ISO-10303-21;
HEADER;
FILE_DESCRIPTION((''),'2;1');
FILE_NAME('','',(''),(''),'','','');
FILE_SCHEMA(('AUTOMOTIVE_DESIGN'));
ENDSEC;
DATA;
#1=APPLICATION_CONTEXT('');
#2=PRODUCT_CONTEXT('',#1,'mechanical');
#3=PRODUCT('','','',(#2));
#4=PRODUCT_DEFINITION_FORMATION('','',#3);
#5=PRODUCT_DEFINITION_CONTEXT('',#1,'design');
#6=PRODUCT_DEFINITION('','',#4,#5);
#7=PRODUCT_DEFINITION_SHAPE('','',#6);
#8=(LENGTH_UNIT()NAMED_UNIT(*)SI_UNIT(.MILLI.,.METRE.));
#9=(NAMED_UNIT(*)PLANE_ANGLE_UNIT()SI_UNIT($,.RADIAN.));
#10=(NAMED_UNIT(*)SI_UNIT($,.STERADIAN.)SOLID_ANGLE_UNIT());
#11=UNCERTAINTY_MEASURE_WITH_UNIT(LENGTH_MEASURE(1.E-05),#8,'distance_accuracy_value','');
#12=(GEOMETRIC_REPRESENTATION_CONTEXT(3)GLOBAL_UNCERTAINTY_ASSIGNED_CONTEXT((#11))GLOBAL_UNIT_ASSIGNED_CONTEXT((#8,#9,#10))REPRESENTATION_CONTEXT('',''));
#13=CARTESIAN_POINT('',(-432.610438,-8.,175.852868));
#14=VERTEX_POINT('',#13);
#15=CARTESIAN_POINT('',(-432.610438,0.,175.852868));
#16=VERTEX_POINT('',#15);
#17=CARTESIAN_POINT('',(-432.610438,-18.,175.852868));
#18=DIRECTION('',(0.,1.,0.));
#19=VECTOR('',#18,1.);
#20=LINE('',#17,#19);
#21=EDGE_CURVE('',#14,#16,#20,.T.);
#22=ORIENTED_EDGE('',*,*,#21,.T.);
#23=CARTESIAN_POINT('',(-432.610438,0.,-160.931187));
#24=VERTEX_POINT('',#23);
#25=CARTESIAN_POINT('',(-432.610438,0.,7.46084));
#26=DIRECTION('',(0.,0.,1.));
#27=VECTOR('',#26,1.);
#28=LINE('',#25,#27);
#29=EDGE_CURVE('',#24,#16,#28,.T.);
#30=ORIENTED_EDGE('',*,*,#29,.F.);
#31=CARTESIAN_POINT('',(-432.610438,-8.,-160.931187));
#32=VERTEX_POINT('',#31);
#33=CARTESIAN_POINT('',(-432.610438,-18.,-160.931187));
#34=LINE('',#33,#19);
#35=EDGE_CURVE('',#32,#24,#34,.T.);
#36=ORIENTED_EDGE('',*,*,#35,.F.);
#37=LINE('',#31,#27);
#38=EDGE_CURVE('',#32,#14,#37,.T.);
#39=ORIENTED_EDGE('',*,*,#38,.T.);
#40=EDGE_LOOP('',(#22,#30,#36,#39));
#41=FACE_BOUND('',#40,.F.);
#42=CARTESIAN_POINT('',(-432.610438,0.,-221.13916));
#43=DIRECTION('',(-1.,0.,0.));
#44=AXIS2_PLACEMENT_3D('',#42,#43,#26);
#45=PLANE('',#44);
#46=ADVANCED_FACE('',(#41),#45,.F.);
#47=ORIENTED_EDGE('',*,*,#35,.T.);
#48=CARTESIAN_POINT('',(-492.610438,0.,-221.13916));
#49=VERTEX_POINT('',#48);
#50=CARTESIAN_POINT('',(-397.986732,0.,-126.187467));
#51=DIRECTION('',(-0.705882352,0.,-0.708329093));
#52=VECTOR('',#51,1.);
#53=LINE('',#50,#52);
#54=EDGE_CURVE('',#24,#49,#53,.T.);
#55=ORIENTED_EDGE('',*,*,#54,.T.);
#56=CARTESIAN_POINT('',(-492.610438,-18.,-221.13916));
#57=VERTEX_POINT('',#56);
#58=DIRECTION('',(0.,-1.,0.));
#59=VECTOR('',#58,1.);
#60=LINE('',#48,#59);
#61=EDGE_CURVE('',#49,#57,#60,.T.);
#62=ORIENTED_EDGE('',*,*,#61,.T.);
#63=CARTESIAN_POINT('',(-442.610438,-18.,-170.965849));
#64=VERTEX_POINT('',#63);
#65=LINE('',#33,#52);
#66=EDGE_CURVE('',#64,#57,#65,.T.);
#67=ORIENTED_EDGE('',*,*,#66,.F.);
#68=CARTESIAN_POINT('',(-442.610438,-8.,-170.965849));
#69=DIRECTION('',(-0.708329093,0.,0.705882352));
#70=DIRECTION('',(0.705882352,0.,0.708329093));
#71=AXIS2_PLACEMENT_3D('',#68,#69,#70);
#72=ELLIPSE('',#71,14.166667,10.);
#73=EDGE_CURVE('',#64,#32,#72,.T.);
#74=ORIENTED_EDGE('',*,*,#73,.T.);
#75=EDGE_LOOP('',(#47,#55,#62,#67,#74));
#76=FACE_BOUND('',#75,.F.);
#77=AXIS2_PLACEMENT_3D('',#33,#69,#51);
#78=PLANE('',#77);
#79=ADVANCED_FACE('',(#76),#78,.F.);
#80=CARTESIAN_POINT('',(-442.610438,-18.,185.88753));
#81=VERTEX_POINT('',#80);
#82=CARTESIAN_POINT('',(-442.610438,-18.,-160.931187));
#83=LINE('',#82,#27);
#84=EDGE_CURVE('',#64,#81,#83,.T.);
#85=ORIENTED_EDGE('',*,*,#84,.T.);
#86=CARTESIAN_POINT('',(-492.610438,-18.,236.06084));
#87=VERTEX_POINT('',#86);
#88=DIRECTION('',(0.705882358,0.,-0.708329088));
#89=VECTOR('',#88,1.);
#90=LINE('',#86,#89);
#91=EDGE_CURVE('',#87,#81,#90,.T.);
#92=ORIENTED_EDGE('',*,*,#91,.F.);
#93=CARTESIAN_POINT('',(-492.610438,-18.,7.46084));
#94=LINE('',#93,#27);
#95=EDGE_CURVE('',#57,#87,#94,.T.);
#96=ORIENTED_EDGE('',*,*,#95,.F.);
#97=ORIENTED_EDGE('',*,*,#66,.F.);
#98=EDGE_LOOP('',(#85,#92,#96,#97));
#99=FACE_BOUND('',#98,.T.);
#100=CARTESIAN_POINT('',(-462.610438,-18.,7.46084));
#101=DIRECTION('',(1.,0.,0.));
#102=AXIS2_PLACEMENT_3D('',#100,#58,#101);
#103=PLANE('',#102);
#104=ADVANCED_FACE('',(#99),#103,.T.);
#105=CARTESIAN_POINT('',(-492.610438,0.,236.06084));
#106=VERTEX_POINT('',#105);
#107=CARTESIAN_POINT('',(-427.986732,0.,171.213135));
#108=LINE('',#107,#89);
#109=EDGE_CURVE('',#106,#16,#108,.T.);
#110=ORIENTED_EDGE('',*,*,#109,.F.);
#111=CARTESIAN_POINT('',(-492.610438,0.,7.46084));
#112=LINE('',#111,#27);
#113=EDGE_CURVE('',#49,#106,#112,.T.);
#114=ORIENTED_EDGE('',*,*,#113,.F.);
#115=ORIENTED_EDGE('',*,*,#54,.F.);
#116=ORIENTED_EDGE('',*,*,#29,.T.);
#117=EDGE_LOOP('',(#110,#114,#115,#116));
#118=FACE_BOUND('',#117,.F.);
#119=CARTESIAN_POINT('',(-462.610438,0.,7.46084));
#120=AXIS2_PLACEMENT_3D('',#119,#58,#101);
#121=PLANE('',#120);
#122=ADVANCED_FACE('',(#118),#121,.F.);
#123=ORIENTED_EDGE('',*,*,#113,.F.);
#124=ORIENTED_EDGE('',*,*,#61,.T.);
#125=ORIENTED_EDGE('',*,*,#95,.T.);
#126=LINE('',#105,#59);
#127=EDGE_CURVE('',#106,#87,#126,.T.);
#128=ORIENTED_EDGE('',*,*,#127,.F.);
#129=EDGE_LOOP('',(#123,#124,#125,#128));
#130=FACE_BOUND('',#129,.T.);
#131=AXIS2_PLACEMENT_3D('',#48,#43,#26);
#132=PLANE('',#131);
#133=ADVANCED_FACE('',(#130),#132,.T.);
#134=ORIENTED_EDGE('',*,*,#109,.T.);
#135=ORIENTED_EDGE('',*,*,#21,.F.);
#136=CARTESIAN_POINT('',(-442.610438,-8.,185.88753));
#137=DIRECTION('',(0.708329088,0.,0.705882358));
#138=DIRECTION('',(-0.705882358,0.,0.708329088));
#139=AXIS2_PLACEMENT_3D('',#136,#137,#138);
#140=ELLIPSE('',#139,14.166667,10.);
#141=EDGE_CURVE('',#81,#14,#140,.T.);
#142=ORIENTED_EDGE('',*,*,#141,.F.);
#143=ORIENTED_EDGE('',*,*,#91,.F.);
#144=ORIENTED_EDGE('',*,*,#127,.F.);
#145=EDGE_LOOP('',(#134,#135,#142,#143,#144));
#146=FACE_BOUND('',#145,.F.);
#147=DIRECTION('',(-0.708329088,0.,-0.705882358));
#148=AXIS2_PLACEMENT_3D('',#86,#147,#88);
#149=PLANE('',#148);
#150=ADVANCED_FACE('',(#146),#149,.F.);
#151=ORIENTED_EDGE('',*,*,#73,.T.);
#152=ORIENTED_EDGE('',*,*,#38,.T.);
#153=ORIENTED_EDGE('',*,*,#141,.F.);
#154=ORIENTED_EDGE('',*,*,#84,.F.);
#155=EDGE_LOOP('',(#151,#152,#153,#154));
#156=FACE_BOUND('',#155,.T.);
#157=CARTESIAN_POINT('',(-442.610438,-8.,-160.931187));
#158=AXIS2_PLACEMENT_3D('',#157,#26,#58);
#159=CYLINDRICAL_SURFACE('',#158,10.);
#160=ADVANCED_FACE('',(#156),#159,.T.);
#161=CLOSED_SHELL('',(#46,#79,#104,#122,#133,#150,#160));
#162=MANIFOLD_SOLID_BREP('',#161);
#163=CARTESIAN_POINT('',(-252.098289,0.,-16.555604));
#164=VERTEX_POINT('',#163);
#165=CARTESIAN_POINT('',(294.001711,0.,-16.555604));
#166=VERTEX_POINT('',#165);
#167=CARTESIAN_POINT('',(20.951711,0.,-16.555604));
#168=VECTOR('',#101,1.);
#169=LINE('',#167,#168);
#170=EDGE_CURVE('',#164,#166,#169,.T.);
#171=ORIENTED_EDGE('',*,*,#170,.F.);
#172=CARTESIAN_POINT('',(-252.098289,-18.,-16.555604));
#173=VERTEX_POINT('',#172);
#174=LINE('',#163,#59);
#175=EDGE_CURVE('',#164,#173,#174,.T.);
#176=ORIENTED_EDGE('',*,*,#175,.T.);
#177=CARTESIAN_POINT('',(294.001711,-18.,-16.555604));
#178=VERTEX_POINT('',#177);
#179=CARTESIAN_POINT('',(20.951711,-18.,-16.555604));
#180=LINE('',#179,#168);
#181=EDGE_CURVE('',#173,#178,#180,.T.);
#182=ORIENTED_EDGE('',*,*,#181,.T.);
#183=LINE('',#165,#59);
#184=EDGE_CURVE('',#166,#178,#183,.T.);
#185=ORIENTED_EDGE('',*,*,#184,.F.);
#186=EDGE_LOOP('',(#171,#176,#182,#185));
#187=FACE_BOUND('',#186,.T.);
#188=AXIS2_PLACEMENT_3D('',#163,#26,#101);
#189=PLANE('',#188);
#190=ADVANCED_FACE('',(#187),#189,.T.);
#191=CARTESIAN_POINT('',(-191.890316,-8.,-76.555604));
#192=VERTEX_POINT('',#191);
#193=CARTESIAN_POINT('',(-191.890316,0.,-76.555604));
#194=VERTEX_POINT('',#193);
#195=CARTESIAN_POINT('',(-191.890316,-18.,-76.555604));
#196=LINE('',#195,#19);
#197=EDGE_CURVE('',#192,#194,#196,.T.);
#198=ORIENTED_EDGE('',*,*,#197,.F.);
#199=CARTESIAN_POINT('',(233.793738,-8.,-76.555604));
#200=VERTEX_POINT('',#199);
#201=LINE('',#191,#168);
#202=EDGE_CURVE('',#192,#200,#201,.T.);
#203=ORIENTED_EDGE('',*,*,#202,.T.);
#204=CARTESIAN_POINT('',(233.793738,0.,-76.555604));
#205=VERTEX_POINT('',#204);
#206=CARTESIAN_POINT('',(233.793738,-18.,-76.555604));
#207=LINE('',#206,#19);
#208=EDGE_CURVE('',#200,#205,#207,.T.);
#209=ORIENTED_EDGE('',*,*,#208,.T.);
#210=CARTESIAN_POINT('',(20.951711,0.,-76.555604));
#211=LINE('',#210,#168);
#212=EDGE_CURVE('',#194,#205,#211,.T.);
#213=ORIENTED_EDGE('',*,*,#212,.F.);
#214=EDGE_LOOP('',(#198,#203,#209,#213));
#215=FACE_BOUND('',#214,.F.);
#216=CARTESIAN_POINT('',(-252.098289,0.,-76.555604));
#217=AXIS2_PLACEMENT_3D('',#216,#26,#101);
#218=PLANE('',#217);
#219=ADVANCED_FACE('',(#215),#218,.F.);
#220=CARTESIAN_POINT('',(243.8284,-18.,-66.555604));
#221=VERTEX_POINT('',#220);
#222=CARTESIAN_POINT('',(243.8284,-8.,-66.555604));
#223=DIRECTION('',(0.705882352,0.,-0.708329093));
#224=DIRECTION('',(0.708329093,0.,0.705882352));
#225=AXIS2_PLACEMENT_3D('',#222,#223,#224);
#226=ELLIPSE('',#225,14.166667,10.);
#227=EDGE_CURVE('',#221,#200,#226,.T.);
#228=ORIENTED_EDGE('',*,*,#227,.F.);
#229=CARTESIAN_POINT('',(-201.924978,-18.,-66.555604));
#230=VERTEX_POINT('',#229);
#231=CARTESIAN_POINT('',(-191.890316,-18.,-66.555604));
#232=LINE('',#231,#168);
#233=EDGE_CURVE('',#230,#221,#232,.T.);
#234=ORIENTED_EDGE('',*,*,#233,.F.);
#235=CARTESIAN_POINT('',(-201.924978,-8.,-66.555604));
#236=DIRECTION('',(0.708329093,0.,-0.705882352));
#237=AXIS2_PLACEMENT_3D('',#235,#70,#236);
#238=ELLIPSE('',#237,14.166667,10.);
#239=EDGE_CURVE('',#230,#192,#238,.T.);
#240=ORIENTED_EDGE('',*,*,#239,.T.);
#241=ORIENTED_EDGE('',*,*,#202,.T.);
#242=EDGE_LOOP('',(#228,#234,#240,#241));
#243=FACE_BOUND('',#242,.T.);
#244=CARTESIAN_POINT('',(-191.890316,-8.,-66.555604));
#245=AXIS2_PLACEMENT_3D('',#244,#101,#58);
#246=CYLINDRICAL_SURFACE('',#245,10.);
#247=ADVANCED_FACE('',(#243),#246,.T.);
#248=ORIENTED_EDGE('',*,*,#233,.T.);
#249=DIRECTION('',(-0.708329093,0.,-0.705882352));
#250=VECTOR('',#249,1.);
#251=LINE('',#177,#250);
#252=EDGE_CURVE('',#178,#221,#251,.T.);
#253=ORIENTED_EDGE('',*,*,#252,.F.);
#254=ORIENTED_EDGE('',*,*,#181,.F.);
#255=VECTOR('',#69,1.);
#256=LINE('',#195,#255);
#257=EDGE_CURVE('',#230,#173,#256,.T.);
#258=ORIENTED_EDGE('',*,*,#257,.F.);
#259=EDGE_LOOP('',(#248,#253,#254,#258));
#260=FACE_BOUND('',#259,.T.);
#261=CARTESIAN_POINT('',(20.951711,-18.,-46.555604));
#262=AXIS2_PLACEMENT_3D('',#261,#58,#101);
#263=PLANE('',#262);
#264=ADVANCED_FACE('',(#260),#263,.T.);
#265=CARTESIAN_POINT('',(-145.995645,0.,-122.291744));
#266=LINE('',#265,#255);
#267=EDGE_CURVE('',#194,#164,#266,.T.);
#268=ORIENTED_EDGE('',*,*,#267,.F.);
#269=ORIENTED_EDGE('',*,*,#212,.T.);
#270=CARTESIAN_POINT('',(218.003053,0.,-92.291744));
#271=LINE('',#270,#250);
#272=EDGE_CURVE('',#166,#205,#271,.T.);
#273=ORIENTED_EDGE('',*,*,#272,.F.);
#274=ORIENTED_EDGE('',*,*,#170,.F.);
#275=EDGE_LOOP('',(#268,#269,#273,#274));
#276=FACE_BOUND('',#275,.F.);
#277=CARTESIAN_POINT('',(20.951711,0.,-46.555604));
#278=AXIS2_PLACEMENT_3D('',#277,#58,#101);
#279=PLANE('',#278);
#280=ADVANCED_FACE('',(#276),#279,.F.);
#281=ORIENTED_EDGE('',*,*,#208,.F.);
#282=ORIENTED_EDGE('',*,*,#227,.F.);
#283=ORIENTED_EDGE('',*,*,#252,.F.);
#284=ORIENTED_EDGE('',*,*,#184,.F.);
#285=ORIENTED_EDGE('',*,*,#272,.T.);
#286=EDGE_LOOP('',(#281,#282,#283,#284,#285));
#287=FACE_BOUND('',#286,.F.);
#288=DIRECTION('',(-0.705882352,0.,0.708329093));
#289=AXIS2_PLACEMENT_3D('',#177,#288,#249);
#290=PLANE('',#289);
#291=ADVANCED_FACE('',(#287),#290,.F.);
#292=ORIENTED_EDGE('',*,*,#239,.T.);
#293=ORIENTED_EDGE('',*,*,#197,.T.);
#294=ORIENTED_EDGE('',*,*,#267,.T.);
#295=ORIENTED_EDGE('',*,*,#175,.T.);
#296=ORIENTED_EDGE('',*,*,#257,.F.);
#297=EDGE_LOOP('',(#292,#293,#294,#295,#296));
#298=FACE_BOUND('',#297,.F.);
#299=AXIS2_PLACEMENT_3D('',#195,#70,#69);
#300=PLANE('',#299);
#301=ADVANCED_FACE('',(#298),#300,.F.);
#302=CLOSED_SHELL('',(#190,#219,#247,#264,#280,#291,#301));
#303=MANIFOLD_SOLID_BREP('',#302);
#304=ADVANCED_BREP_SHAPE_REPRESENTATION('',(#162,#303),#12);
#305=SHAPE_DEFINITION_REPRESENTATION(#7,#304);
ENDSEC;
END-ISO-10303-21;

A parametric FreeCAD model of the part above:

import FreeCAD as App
import Part
import Sketcher


def edges_at(feature, points):
    """Names of the edges that pass closest to the given points."""
    edges = feature.Shape.Edges
    near = lambda p: min(range(len(edges)), key=lambda i: edges[i].distToShape(Part.Vertex(*p))[0])
    return sorted({f"Edge{near(p) + 1}" for p in points})

doc = App.newDocument("Part")
body = doc.addObject("PartDesign::Body", "Body")

# Sketch on XZ plane
sketch1 = body.newObject("Sketcher::SketchObject", "Sketch")
sketch1.AttachmentSupport = (doc.getObject("XZ_Plane"), [""])
sketch1.MapMode = "FlatFace"
sketch1.addGeometry(Part.LineSegment(App.Vector(-252, -17, 0), App.Vector(-252, -77, 0)), False)
sketch1.addGeometry(Part.LineSegment(App.Vector(-252, -77, 0), App.Vector(294, -77, 0)), False)
sketch1.addGeometry(Part.LineSegment(App.Vector(294, -77, 0), App.Vector(294, -17, 0)), False)
sketch1.addGeometry(Part.LineSegment(App.Vector(294, -17, 0), App.Vector(-252, -17, 0)), False)
sketch1.addConstraint(Sketcher.Constraint("Coincident", 0, 2, 1, 1))
sketch1.addConstraint(Sketcher.Constraint("Coincident", 1, 2, 2, 1))
sketch1.addConstraint(Sketcher.Constraint("Coincident", 2, 2, 3, 1))
sketch1.addConstraint(Sketcher.Constraint("Coincident", 3, 2, 0, 1))
sketch1.addConstraint(Sketcher.Constraint("Vertical", 0))
sketch1.addConstraint(Sketcher.Constraint("Horizontal", 1))
sketch1.addConstraint(Sketcher.Constraint("Vertical", 2))
sketch1.addConstraint(Sketcher.Constraint("Horizontal", 3))
sketch1.addConstraint(Sketcher.Constraint("DistanceY", 0, 2, 0, 1, 60.0))
sketch1.addConstraint(Sketcher.Constraint("DistanceX", 1, 1, 1, 2, 546.1))
sketch1.addConstraint(Sketcher.Constraint("DistanceX", 0, 2, -1, 1, 252.098289))
sketch1.addConstraint(Sketcher.Constraint("DistanceY", 0, 2, -1, 1, 76.555604))
pad1 = body.newObject("PartDesign::Pad", "Pad")
pad1.Profile = sketch1
pad1.Length = 18

# Sketch on XZ plane
sketch2 = body.newObject("Sketcher::SketchObject", "Sketch001")
sketch2.AttachmentSupport = (doc.getObject("XZ_Plane"), [""])
sketch2.MapMode = "FlatFace"
sketch2.AttachmentOffset = App.Placement(App.Vector(0, 0, 18), App.Rotation())
sketch2.addGeometry(Part.LineSegment(App.Vector(-192, -77, 0), App.Vector(-252, -17, 0)), False)
sketch2.addGeometry(Part.LineSegment(App.Vector(-252, -17, 0), App.Vector(-252, -77, 0)), False)
sketch2.addGeometry(Part.LineSegment(App.Vector(-252, -77, 0), App.Vector(-192, -77, 0)), False)
sketch2.addConstraint(Sketcher.Constraint("Coincident", 0, 2, 1, 1))
sketch2.addConstraint(Sketcher.Constraint("Coincident", 1, 2, 2, 1))
sketch2.addConstraint(Sketcher.Constraint("Coincident", 2, 2, 0, 1))
sketch2.addConstraint(Sketcher.Constraint("Vertical", 1))
sketch2.addConstraint(Sketcher.Constraint("Horizontal", 2))
sketch2.addConstraint(Sketcher.Constraint("DistanceY", 1, 2, 1, 1, 60.0))
sketch2.addConstraint(Sketcher.Constraint("Distance", 0, 85.0))
sketch2.addConstraint(Sketcher.Constraint("DistanceX", 0, 2, -1, 1, 252.098289))
sketch2.addConstraint(Sketcher.Constraint("DistanceY", 0, 2, -1, 1, 16.555604))
pocket1 = body.newObject("PartDesign::Pocket", "Pocket")
pocket1.Profile = sketch2
pocket1.Type = "ThroughAll"

# Sketch on XZ plane
sketch3 = body.newObject("Sketcher::SketchObject", "Sketch002")
sketch3.AttachmentSupport = (doc.getObject("XZ_Plane"), [""])
sketch3.MapMode = "FlatFace"
sketch3.AttachmentOffset = App.Placement(App.Vector(0, 0, 18), App.Rotation())
sketch3.addGeometry(Part.LineSegment(App.Vector(294, -77, 0), App.Vector(294, -17, 0)), False)
sketch3.addGeometry(Part.LineSegment(App.Vector(294, -17, 0), App.Vector(234, -77, 0)), False)
sketch3.addGeometry(Part.LineSegment(App.Vector(234, -77, 0), App.Vector(294, -77, 0)), False)
sketch3.addConstraint(Sketcher.Constraint("Coincident", 0, 2, 1, 1))
sketch3.addConstraint(Sketcher.Constraint("Coincident", 1, 2, 2, 1))
sketch3.addConstraint(Sketcher.Constraint("Coincident", 2, 2, 0, 1))
sketch3.addConstraint(Sketcher.Constraint("Vertical", 0))
sketch3.addConstraint(Sketcher.Constraint("Horizontal", 2))
sketch3.addConstraint(Sketcher.Constraint("DistanceY", 0, 1, 0, 2, 60.0))
sketch3.addConstraint(Sketcher.Constraint("Distance", 1, 85.0))
sketch3.addConstraint(Sketcher.Constraint("DistanceX", -1, 1, 0, 2, 294.001711))
sketch3.addConstraint(Sketcher.Constraint("DistanceY", 0, 2, -1, 1, 16.555604))
pocket2 = body.newObject("PartDesign::Pocket", "Pocket001")
pocket2.Profile = sketch3
pocket2.Type = "ThroughAll"
doc.recompute()

fillet = body.newObject("PartDesign::Fillet", "Fillet")
fillet.Base = (pocket2, edges_at(pocket2, [(20.952, -18, -76.556)]))
fillet.Radius = 10
body2 = doc.addObject("PartDesign::Body", "Body001")

# Sketch on XZ plane
sketch4 = body2.newObject("Sketcher::SketchObject", "Sketch003")
sketch4.AttachmentSupport = (doc.getObject("XZ_Plane001"), [""])
sketch4.MapMode = "FlatFace"
sketch4.addGeometry(Part.LineSegment(App.Vector(-493, 236, 0), App.Vector(-493, -221, 0)), False)
sketch4.addGeometry(Part.LineSegment(App.Vector(-493, -221, 0), App.Vector(-433, -221, 0)), False)
sketch4.addGeometry(Part.LineSegment(App.Vector(-433, -221, 0), App.Vector(-433, 236, 0)), False)
sketch4.addGeometry(Part.LineSegment(App.Vector(-433, 236, 0), App.Vector(-493, 236, 0)), False)
sketch4.addConstraint(Sketcher.Constraint("Coincident", 0, 2, 1, 1))
sketch4.addConstraint(Sketcher.Constraint("Coincident", 1, 2, 2, 1))
sketch4.addConstraint(Sketcher.Constraint("Coincident", 2, 2, 3, 1))
sketch4.addConstraint(Sketcher.Constraint("Coincident", 3, 2, 0, 1))
sketch4.addConstraint(Sketcher.Constraint("Vertical", 0))
sketch4.addConstraint(Sketcher.Constraint("Horizontal", 1))
sketch4.addConstraint(Sketcher.Constraint("Vertical", 2))
sketch4.addConstraint(Sketcher.Constraint("Horizontal", 3))
sketch4.addConstraint(Sketcher.Constraint("DistanceX", 1, 1, 1, 2, 60.0))
sketch4.addConstraint(Sketcher.Constraint("DistanceY", 0, 2, 0, 1, 457.2))
sketch4.addConstraint(Sketcher.Constraint("DistanceX", 0, 2, -1, 1, 492.610438))
sketch4.addConstraint(Sketcher.Constraint("DistanceY", 0, 2, -1, 1, 221.13916))
pad2 = body2.newObject("PartDesign::Pad", "Pad001")
pad2.Profile = sketch4
pad2.Length = 18

# Sketch on XZ plane
sketch5 = body2.newObject("Sketcher::SketchObject", "Sketch004")
sketch5.AttachmentSupport = (doc.getObject("XZ_Plane001"), [""])
sketch5.MapMode = "FlatFace"
sketch5.AttachmentOffset = App.Placement(App.Vector(0, 0, 18), App.Rotation())
sketch5.addGeometry(Part.LineSegment(App.Vector(-433, 236, 0), App.Vector(-493, 236, 0)), False)
sketch5.addGeometry(Part.LineSegment(App.Vector(-493, 236, 0), App.Vector(-433, 176, 0)), False)
sketch5.addGeometry(Part.LineSegment(App.Vector(-433, 176, 0), App.Vector(-433, 236, 0)), False)
sketch5.addConstraint(Sketcher.Constraint("Coincident", 0, 2, 1, 1))
sketch5.addConstraint(Sketcher.Constraint("Coincident", 1, 2, 2, 1))
sketch5.addConstraint(Sketcher.Constraint("Coincident", 2, 2, 0, 1))
sketch5.addConstraint(Sketcher.Constraint("Horizontal", 0))
sketch5.addConstraint(Sketcher.Constraint("Vertical", 2))
sketch5.addConstraint(Sketcher.Constraint("DistanceX", 0, 2, 0, 1, 60.0))
sketch5.addConstraint(Sketcher.Constraint("Distance", 1, 84.999999))
sketch5.addConstraint(Sketcher.Constraint("DistanceX", 0, 2, -1, 1, 492.610438))
sketch5.addConstraint(Sketcher.Constraint("DistanceY", -1, 1, 0, 2, 236.06084))
pocket3 = body2.newObject("PartDesign::Pocket", "Pocket002")
pocket3.Profile = sketch5
pocket3.Type = "ThroughAll"

# Sketch on XZ plane
sketch6 = body2.newObject("Sketcher::SketchObject", "Sketch005")
sketch6.AttachmentSupport = (doc.getObject("XZ_Plane001"), [""])
sketch6.MapMode = "FlatFace"
sketch6.AttachmentOffset = App.Placement(App.Vector(0, 0, 18), App.Rotation())
sketch6.addGeometry(Part.LineSegment(App.Vector(-433, -161, 0), App.Vector(-493, -221, 0)), False)
sketch6.addGeometry(Part.LineSegment(App.Vector(-493, -221, 0), App.Vector(-433, -221, 0)), False)
sketch6.addGeometry(Part.LineSegment(App.Vector(-433, -221, 0), App.Vector(-433, -161, 0)), False)
sketch6.addConstraint(Sketcher.Constraint("Coincident", 0, 2, 1, 1))
sketch6.addConstraint(Sketcher.Constraint("Coincident", 1, 2, 2, 1))
sketch6.addConstraint(Sketcher.Constraint("Coincident", 2, 2, 0, 1))
sketch6.addConstraint(Sketcher.Constraint("Horizontal", 1))
sketch6.addConstraint(Sketcher.Constraint("Vertical", 2))
sketch6.addConstraint(Sketcher.Constraint("DistanceX", 1, 1, 1, 2, 60.0))
sketch6.addConstraint(Sketcher.Constraint("Distance", 0, 85.0))
sketch6.addConstraint(Sketcher.Constraint("DistanceX", 0, 2, -1, 1, 492.610438))
sketch6.addConstraint(Sketcher.Constraint("DistanceY", 0, 2, -1, 1, 221.13916))
pocket4 = body2.newObject("PartDesign::Pocket", "Pocket003")
pocket4.Profile = sketch6
pocket4.Type = "ThroughAll"
doc.recompute()

fillet2 = body2.newObject("PartDesign::Fillet", "Fillet001")
fillet2.Base = (pocket4, edges_at(pocket4, [(-432.61, -18, 7.461)]))
fillet2.Radius = 10

doc.recompute()
